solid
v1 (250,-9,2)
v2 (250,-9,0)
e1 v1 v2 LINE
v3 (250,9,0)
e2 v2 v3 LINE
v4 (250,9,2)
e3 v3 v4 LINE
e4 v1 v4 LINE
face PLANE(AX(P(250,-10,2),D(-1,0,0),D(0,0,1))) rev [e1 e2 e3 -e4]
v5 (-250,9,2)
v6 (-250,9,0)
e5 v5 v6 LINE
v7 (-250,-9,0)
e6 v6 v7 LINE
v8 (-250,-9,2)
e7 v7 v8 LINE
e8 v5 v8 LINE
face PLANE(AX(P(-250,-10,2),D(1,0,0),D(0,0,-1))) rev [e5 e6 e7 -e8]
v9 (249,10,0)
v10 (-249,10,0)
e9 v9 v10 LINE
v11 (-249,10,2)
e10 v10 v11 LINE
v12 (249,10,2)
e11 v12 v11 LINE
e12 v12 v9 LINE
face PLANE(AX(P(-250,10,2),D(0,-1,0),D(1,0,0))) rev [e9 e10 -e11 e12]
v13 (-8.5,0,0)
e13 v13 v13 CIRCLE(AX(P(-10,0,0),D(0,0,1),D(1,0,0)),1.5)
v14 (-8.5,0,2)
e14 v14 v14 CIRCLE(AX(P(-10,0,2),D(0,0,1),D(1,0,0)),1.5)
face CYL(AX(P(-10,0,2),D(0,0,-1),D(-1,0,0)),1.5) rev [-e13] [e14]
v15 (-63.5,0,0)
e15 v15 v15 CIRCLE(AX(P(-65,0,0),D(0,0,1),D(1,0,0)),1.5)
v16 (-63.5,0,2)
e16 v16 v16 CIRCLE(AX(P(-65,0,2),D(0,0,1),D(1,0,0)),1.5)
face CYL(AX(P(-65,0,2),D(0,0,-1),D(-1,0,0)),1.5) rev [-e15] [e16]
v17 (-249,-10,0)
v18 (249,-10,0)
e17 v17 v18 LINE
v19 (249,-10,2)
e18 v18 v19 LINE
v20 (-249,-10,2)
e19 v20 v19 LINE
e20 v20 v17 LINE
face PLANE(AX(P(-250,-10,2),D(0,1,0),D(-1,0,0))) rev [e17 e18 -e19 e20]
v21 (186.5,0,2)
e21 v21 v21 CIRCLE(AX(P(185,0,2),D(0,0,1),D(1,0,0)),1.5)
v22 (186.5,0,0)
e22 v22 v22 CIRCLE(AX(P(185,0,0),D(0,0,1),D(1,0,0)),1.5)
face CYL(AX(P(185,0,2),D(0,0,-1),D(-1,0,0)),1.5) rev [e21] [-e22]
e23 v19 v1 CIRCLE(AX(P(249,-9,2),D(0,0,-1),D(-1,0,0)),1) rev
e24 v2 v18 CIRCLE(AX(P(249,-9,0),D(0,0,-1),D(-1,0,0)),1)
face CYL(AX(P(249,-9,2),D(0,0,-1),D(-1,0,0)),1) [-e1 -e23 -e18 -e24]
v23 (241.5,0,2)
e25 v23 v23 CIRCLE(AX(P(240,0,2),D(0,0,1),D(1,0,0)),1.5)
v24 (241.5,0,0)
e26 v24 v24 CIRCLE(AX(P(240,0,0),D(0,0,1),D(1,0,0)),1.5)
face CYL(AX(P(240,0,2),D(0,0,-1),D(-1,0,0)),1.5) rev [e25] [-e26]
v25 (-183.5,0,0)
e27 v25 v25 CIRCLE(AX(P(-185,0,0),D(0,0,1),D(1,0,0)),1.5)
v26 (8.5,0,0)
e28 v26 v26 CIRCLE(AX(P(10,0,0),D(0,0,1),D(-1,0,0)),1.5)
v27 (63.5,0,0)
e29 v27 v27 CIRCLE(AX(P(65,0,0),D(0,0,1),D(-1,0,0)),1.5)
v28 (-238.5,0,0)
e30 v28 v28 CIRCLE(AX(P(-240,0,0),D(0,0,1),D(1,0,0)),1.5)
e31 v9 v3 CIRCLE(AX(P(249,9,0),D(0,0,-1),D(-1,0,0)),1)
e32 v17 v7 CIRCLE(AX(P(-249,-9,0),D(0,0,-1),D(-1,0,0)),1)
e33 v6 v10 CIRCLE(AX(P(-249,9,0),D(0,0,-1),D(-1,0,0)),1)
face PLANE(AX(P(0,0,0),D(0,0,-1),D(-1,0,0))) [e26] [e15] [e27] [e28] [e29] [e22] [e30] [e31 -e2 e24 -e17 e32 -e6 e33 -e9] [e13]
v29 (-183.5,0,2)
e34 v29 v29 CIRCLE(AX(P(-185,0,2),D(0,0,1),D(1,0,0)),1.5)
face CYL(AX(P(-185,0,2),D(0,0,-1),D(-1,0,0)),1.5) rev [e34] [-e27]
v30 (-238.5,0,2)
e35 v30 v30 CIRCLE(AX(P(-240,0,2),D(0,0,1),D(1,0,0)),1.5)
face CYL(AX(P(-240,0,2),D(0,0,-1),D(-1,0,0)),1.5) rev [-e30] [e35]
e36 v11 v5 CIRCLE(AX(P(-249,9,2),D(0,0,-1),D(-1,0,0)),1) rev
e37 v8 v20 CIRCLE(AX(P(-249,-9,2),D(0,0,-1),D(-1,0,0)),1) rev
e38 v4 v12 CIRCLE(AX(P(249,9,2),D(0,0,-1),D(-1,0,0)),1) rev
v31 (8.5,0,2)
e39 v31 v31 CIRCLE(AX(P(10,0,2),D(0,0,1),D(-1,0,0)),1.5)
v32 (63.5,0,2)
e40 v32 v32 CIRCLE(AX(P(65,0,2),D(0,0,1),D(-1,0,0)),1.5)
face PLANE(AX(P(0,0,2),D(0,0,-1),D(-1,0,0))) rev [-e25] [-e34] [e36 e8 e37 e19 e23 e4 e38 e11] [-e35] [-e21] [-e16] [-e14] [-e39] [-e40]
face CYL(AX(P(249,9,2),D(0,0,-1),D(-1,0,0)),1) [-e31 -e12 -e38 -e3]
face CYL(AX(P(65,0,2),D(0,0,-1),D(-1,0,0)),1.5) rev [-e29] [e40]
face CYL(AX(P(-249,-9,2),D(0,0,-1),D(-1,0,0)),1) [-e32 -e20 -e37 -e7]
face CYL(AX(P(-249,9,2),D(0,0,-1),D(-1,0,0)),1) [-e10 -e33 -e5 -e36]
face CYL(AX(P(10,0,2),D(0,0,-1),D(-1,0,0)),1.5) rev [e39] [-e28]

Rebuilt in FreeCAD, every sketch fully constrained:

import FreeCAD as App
import Part
import Sketcher
Q = App.Units.Quantity


def edges_at(feature, points):
    """Names of the edges that pass closest to the given points."""
    edges = feature.Shape.Edges
    near = lambda p: min(range(len(edges)), key=lambda i: edges[i].distToShape(Part.Vertex(*p))[0])
    return sorted({f"Edge{near(p) + 1}" for p in points})


def add_polygon(sketch, points):
    """Adds a closed chain of lines whose ends are joined by coincident constraints."""
    first, n = sketch.GeometryCount, len(points)
    for a, b in zip(points, points[1:] + points[:1]):
        sketch.addGeometry(Part.LineSegment(App.Vector(*a, 0), App.Vector(*b, 0)), False)
    for i in range(n):
        sketch.addConstraint(Sketcher.Constraint("Coincident", first + i, 2, first + (i + 1) % n, 1))

doc = App.newDocument("Part")
body = doc.addObject("PartDesign::Body", "Body")

# Sketch on XY plane
sketch1 = body.newObject("Sketcher::SketchObject", "Sketch")
sketch1.AttachmentSupport = (doc.getObject("XY_Plane"), [""])
sketch1.MapMode = "FlatFace"
add_polygon(sketch1, [(-250, 10), (-250, -10), (250, -10), (250, 10)])  # lines 0-3
sketch1.addGeometry(Part.Circle(App.Vector(-240, 0, 0), App.Vector(0, 0, 1), 1.5), False)  # 4
sketch1.addGeometry(Part.Circle(App.Vector(-185, 0, 0), App.Vector(0, 0, 1), 1.5), False)  # 5
sketch1.addGeometry(Part.Circle(App.Vector(-65, 0, 0), App.Vector(0, 0, 1), 1.5), False)  # 6
sketch1.addGeometry(Part.Circle(App.Vector(-10, 0, 0), App.Vector(0, 0, 1), 1.5), False)  # 7
sketch1.addGeometry(Part.Circle(App.Vector(10, 0, 0), App.Vector(0, 0, 1), 1.5), False)  # 8
sketch1.addGeometry(Part.Circle(App.Vector(65, 0, 0), App.Vector(0, 0, 1), 1.5), False)  # 9
sketch1.addGeometry(Part.Circle(App.Vector(185, 0, 0), App.Vector(0, 0, 1), 1.5), False)  # 10
sketch1.addGeometry(Part.Circle(App.Vector(240, 0, 0), App.Vector(0, 0, 1), 1.5), False)  # 11
sketch1.addConstraint([
    Sketcher.Constraint("Vertical", 0),
    Sketcher.Constraint("Horizontal", 1),
    Sketcher.Constraint("Vertical", 2),
    Sketcher.Constraint("Horizontal", 3),
    Sketcher.Constraint("Equal", 4, 5),
    Sketcher.Constraint("Equal", 5, 6),
    Sketcher.Constraint("Equal", 6, 7),
    Sketcher.Constraint("Equal", 7, 8),
    Sketcher.Constraint("Equal", 8, 9),
    Sketcher.Constraint("Equal", 9, 10),
    Sketcher.Constraint("Equal", 10, 11),
    Sketcher.Constraint("Symmetric", 7, 3, 8, 3, -1, 1),
    Sketcher.Constraint("Symmetric", 6, 3, 9, 3, -1, 1),
    Sketcher.Constraint("Symmetric", 5, 3, 10, 3, -1, 1),
    Sketcher.Constraint("Symmetric", 4, 3, 11, 3, -1, 1),
    Sketcher.Constraint("Symmetric", 0, 2, 2, 2, -1, 1),
    Sketcher.Constraint("PointOnObject", 4, 3, -1),
    Sketcher.Constraint("PointOnObject", 5, 3, -1),
    Sketcher.Constraint("PointOnObject", 6, 3, -1),
    Sketcher.Constraint("PointOnObject", 7, 3, -1),
    Sketcher.Constraint("Diameter", 4, Q("3 mm")),
    Sketcher.Constraint("DistanceX", 1, 1, 1, 2, Q("500 mm")),
    Sketcher.Constraint("DistanceY", 0, 2, 0, 1, Q("20 mm")),
    Sketcher.Constraint("DistanceX", 4, 3, -1, 1, Q("240 mm")),
    Sketcher.Constraint("DistanceX", 5, 3, -1, 1, Q("185 mm")),
    Sketcher.Constraint("DistanceX", 6, 3, -1, 1, Q("65 mm")),
    Sketcher.Constraint("DistanceX", 7, 3, -1, 1, Q("10 mm")),
])
pad1 = body.newObject("PartDesign::Pad", "Pad")
pad1.Profile = sketch1
pad1.Length = 2
doc.recompute()

fillet = body.newObject("PartDesign::Fillet", "Fillet")
fillet.Base = (pad1, edges_at(pad1, [
    (250, -10, 1),
    (-250, -10, 1),
    (-250, 10, 1),
    (250, 10, 1),
]))
fillet.Radius = 1

doc.recompute()
